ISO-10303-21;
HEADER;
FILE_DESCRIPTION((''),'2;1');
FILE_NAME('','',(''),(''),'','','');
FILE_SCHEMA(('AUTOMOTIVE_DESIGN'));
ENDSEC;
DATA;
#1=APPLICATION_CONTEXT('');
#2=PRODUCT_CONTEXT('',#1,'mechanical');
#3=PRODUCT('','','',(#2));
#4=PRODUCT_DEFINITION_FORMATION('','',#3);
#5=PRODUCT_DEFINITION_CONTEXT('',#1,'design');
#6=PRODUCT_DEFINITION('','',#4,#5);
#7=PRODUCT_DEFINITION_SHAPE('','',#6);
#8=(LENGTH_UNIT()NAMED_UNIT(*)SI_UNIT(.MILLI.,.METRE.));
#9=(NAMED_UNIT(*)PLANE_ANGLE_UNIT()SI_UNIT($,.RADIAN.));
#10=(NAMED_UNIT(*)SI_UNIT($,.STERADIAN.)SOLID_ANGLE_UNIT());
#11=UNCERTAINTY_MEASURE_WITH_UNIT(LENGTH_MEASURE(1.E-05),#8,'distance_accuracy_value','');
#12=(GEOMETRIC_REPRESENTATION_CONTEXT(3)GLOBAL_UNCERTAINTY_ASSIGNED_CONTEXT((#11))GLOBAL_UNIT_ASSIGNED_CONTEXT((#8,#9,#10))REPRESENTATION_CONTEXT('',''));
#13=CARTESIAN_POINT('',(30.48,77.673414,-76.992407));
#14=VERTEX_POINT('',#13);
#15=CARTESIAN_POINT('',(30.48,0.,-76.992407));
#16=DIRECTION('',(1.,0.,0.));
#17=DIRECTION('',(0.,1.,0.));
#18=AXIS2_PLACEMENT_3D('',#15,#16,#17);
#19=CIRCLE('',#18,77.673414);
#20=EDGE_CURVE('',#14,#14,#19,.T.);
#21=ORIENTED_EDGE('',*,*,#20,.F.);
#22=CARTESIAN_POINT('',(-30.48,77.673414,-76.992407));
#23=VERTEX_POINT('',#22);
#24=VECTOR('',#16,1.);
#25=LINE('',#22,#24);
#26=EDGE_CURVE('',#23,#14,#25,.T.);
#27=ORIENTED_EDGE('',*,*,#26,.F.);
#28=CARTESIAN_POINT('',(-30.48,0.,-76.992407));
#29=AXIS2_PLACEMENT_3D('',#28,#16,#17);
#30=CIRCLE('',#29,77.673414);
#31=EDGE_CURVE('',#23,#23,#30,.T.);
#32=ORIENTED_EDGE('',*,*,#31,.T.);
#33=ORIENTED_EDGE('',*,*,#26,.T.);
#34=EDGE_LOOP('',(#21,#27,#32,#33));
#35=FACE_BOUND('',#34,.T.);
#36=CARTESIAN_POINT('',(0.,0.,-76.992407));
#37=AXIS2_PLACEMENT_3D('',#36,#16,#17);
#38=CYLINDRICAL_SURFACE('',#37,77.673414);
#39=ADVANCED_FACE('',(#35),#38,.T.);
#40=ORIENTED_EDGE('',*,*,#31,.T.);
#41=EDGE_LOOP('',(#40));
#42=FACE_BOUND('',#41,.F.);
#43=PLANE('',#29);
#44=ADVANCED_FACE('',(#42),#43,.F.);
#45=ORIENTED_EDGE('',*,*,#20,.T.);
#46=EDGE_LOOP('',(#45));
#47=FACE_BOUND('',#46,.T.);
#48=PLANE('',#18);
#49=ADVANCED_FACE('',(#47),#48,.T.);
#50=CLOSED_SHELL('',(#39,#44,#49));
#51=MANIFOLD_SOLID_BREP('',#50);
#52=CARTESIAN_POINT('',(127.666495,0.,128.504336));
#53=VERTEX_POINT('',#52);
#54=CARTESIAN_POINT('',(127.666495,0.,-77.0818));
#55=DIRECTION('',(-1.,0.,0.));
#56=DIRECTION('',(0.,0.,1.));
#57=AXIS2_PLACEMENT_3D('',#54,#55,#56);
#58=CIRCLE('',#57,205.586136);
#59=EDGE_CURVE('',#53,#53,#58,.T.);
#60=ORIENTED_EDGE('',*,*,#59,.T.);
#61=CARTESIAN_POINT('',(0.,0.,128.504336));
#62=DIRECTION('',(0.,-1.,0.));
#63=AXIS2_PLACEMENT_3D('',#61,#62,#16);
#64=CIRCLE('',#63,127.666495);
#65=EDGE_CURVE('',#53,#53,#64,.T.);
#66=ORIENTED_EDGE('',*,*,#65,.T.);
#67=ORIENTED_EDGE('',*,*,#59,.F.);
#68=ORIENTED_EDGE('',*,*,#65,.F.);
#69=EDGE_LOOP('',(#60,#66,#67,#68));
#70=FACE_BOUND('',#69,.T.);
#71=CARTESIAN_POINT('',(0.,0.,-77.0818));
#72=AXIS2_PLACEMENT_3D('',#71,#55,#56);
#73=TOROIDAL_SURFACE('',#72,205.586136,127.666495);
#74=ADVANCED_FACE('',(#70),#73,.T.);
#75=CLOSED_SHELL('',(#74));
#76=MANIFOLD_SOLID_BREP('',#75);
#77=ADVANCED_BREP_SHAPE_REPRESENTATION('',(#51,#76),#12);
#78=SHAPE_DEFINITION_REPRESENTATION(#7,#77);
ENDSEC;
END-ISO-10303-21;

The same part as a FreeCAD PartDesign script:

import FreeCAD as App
import Part
import Sketcher

V = App.Vector
Q = App.Units.Quantity

doc = App.newDocument("Part")
body = doc.addObject("PartDesign::Body", "Body")

# Sketch on XZ plane
sketch1 = body.newObject("Sketcher::SketchObject", "Sketch")
sketch1.AttachmentSupport = (doc.getObject("XZ_Plane"), [""])
sketch1.MapMode = "FlatFace"
sketch1.addGeometry(Part.Circle(V(0, 129, 0), V(0, 0, 1), 128), False)
sketch1.addGeometry(Part.LineSegment(V(0, -77, 0), V(-10, -77, 0)), True)  # axis
sketch1.addConstraint([
    Sketcher.Constraint("Horizontal", 1),
    Sketcher.Constraint("PointOnObject", 0, 3, -2),
    Sketcher.Constraint("PointOnObject", 1, 1, -2),
    Sketcher.Constraint("Diameter", 0, 255.33299),
    Sketcher.Constraint("DistanceX", 1, 2, 1, 1, 10.0),
    Sketcher.Constraint("DistanceY", 1, 1, -1, 1, 77.0818),
    Sketcher.Constraint("DistanceY", -1, 1, 0, 3, 128.504336),
])
revolution = body.newObject("PartDesign::Revolution", "Revolution")
revolution.Profile = sketch1
revolution.ReferenceAxis = (sketch1, ["Axis0"])
revolution.Angle = 360
body2 = doc.addObject("PartDesign::Body", "Body001")

# Sketch on YZ plane
sketch2 = body2.newObject("Sketcher::SketchObject", "Sketch001")
sketch2.AttachmentSupport = (doc.getObject("YZ_Plane001"), [""])
sketch2.MapMode = "FlatFace"
sketch2.addGeometry(Part.Circle(V(0, -77, 0), V(0, 0, 1), 78), False)
sketch2.addConstraint([
    Sketcher.Constraint("PointOnObject", 0, 3, -2),
    Sketcher.Constraint("Diameter", 0, 155.346828),
    Sketcher.Constraint("DistanceY", 0, 3, -1, 1, 76.992407),
])
pad1 = body2.newObject("PartDesign::Pad", "Pad")
pad1.Profile = sketch2
pad1.Length = Q("2.4 in")
pad1.Midplane = True

doc.recompute()
